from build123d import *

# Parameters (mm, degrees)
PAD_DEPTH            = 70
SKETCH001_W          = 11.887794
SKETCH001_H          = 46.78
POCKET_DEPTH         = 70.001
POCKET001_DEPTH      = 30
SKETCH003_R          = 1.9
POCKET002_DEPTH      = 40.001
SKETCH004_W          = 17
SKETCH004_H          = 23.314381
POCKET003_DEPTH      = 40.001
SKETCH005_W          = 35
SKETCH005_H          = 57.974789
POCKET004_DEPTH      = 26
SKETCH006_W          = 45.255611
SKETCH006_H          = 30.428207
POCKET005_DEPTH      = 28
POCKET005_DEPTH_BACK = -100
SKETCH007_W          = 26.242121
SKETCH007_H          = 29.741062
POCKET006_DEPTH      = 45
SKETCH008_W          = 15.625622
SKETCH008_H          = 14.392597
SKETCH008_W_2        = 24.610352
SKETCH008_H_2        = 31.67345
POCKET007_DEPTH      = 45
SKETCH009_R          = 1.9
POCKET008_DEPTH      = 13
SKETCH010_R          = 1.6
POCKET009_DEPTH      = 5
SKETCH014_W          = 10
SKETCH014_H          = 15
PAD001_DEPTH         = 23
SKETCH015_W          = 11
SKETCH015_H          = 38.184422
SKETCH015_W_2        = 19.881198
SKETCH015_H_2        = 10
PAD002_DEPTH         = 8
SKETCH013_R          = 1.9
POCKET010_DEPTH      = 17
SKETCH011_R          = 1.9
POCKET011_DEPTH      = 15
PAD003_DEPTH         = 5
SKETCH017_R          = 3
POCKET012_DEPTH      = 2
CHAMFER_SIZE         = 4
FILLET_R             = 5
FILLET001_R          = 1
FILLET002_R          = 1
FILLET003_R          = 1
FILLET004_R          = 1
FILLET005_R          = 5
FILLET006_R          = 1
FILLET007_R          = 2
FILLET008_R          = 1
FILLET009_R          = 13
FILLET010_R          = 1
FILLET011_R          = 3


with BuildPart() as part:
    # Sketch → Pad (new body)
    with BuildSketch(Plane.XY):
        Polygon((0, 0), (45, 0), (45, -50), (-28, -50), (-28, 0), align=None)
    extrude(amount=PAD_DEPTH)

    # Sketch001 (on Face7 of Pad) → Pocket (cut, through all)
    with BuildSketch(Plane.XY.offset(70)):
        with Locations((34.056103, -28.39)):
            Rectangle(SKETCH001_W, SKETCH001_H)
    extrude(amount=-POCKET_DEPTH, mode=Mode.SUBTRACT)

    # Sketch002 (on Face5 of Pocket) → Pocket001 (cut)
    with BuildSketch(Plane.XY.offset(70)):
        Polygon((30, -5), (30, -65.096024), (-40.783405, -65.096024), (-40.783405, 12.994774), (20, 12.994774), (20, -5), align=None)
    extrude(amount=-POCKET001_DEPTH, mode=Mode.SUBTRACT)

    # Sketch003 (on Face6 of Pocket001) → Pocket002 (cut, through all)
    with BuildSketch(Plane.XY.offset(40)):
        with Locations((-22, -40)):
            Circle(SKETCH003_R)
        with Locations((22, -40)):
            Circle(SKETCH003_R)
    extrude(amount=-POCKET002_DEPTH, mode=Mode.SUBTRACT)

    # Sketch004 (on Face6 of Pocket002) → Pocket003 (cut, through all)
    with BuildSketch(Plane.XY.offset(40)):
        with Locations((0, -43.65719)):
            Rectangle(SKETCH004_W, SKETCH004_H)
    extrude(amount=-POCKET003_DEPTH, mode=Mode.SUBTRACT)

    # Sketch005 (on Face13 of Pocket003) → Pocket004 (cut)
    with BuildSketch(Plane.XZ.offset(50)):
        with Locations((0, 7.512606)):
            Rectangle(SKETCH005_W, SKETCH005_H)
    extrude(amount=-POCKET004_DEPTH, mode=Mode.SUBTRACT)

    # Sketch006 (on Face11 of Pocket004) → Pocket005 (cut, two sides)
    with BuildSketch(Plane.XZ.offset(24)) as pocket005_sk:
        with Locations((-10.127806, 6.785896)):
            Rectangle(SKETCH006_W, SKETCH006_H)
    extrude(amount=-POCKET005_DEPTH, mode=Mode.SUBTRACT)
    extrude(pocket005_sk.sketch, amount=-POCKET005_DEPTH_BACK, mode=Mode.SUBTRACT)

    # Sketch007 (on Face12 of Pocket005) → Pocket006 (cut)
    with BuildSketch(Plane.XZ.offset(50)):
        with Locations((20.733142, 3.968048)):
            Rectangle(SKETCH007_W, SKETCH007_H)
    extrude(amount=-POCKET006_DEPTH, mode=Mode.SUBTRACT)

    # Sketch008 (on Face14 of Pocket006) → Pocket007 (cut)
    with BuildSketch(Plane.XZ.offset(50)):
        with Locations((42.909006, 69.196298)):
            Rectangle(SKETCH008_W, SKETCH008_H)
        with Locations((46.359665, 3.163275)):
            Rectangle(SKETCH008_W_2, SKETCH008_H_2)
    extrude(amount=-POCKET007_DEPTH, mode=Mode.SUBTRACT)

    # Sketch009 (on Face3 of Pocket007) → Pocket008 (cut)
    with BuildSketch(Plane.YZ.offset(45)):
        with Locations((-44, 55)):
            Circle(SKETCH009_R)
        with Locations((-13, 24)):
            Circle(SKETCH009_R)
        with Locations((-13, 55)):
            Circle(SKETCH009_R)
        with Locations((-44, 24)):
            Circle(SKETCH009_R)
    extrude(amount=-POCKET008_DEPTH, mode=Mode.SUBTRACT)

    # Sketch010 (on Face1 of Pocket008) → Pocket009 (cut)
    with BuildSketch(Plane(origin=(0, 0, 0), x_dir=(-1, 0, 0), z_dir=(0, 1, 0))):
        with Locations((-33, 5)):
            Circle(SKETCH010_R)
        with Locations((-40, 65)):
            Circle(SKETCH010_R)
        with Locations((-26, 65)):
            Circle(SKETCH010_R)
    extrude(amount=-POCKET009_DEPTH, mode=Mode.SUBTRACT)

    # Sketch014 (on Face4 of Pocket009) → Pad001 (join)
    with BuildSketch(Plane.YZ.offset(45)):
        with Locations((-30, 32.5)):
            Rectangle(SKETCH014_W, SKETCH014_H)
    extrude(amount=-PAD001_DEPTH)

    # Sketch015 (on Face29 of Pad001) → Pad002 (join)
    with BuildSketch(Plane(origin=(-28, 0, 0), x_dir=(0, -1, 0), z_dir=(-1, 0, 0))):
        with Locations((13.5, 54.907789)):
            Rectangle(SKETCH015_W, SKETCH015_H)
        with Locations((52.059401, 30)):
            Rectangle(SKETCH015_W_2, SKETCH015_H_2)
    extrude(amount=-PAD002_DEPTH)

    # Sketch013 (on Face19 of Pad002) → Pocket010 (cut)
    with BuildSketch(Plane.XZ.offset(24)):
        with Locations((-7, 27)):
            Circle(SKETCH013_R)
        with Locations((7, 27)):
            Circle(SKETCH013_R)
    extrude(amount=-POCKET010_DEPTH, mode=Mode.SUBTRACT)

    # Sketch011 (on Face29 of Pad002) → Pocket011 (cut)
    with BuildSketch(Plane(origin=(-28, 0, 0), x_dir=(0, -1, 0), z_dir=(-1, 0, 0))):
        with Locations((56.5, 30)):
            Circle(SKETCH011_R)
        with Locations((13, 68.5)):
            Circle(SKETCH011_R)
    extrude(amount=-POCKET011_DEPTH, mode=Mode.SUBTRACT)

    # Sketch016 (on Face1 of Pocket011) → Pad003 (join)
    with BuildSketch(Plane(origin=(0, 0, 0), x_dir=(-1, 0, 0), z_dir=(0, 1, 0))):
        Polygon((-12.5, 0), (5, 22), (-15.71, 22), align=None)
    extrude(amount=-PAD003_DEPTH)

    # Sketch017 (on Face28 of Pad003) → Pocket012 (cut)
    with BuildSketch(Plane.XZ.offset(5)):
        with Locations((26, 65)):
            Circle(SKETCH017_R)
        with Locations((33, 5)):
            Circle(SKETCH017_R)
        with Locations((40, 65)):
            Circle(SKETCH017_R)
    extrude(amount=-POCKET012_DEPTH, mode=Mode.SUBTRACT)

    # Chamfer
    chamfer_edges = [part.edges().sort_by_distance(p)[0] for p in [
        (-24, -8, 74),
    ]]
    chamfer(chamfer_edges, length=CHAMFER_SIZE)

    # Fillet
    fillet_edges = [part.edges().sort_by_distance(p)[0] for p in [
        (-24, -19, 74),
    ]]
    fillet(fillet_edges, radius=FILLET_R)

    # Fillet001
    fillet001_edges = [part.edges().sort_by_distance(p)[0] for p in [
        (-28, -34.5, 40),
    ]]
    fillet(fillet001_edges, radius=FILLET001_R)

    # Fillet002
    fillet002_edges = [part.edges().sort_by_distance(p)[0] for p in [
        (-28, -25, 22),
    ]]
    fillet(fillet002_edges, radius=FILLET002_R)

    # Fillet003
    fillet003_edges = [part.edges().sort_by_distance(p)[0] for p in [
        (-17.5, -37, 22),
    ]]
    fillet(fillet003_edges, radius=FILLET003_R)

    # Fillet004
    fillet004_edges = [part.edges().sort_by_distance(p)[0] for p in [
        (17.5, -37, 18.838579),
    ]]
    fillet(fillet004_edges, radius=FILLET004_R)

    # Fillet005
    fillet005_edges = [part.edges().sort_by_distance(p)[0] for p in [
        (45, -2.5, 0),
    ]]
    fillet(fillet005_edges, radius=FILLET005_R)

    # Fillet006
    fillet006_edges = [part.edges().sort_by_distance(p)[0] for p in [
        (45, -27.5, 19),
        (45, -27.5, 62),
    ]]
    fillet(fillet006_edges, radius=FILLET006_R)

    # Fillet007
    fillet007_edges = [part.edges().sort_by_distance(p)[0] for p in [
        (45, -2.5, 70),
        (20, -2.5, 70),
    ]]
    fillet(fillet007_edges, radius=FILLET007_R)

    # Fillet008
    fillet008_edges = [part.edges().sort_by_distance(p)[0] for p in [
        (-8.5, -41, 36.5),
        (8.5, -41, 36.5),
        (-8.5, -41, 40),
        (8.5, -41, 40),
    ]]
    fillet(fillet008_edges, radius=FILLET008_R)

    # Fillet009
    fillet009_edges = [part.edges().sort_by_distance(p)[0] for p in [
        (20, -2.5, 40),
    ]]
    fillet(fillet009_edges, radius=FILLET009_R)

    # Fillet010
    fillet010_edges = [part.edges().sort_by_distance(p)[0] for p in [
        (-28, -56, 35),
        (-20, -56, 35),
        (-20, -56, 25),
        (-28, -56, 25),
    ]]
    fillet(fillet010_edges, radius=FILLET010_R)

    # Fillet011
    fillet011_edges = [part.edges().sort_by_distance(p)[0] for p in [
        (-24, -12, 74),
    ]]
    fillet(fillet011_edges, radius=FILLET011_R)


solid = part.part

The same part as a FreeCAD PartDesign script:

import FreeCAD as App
import Part
import Sketcher

V = App.Vector


def edges_at(feature, points):
    """Names of the edges that pass closest to the given points."""
    edges = feature.Shape.Edges
    near = lambda p: min(range(len(edges)), key=lambda i: edges[i].distToShape(Part.Vertex(*p))[0])
    return sorted({f"Edge{near(p) + 1}" for p in points})


def add_polygon(sketch, points):
    """Adds a closed chain of lines whose ends are joined by coincident constraints."""
    first, n = sketch.GeometryCount, len(points)
    for a, b in zip(points, points[1:] + points[:1]):
        sketch.addGeometry(Part.LineSegment(App.Vector(*a, 0), App.Vector(*b, 0)), False)
    for i in range(n):
        sketch.addConstraint(Sketcher.Constraint("Coincident", first + i, 2, first + (i + 1) % n, 1))

doc = App.newDocument("Part")
body = doc.addObject("PartDesign::Body", "Body")

sketch1 = body.newObject("Sketcher::SketchObject", "Sketch")
sketch1.AttachmentSupport = (doc.getObject("XY_Plane"), [""])
sketch1.MapMode = "FlatFace"
add_polygon(sketch1, [(45, 0), (-28, 0), (-28, -50), (45, -50)])
sketch1.addConstraint([
    Sketcher.Constraint("Horizontal", 0),
    Sketcher.Constraint("Vertical", 1),
    Sketcher.Constraint("Horizontal", 2),
    Sketcher.Constraint("Vertical", 3),
    Sketcher.Constraint("PointOnObject", 0, 2, -1),
    Sketcher.Constraint("DistanceX", 0, 2, 0, 1, 73.0),
    Sketcher.Constraint("DistanceY", 1, 2, 1, 1, 50.0),
    Sketcher.Constraint("DistanceX", 0, 2, -1, 1, 28.0),
])
pad1 = body.newObject("PartDesign::Pad", "Pad")
pad1.Profile = sketch1
pad1.Length = 70

sketch2 = body.newObject("Sketcher::SketchObject", "Sketch001")
sketch2.AttachmentSupport = (doc.getObject("XY_Plane"), [""])
sketch2.MapMode = "FlatFace"
sketch2.AttachmentOffset = App.Placement(V(0, 0, 70), App.Rotation())
add_polygon(sketch2, [(28, -5), (28, -52), (40, -52), (40, -5)])
sketch2.addConstraint([
    Sketcher.Constraint("Vertical", 0),
    Sketcher.Constraint("Horizontal", 1),
    Sketcher.Constraint("Vertical", 2),
    Sketcher.Constraint("Horizontal", 3),
    Sketcher.Constraint("DistanceX", -1, 1, 1, 2, 40.0),
    Sketcher.Constraint("DistanceY", 2, 2, -1, 1, 5.0),
    Sketcher.Constraint("DistanceY", 0, 2, 0, 1, 46.78),
    Sketcher.Constraint("DistanceX", 1, 1, 1, 2, 11.887794),
])
pocket1 = body.newObject("PartDesign::Pocket", "Pocket")
pocket1.Profile = sketch2
pocket1.Type = "ThroughAll"

sketch3 = body.newObject("Sketcher::SketchObject", "Sketch002")
sketch3.AttachmentSupport = (doc.getObject("XY_Plane"), [""])
sketch3.MapMode = "FlatFace"
sketch3.AttachmentOffset = App.Placement(V(0, 0, 70), App.Rotation())
add_polygon(sketch3, [(30, -65), (30, -5), (20, -5), (20, 13), (-41, 13), (-41, -65)])
sketch3.addConstraint([
    Sketcher.Constraint("Vertical", 0),
    Sketcher.Constraint("Horizontal", 1),
    Sketcher.Constraint("Vertical", 2),
    Sketcher.Constraint("Horizontal", 3),
    Sketcher.Constraint("Vertical", 4),
    Sketcher.Constraint("Horizontal", 5),
    Sketcher.Constraint("DistanceX", 1, 2, 1, 1, 10.0),
    Sketcher.Constraint("DistanceX", -1, 1, 0, 2, 30.0),
    Sketcher.Constraint("DistanceY", 0, 2, -1, 1, 5.0),
    Sketcher.Constraint("DistanceY", 4, 2, 4, 1, 78.090798),
    Sketcher.Constraint("DistanceX", 3, 2, 3, 1, 60.783405),
    Sketcher.Constraint("DistanceY", 0, 1, 0, 2, 60.096024),
])
pocket2 = body.newObject("PartDesign::Pocket", "Pocket001")
pocket2.Profile = sketch3
pocket2.Length = 30

sketch4 = body.newObject("Sketcher::SketchObject", "Sketch003")
sketch4.AttachmentSupport = (doc.getObject("XY_Plane"), [""])
sketch4.MapMode = "FlatFace"
sketch4.AttachmentOffset = App.Placement(V(0, 0, 40), App.Rotation())
sketch4.addGeometry([
    Part.Circle(V(-22, -40, 0), V(0, 0, 1), 1.9),
    Part.Circle(V(22, -40, 0), V(0, 0, 1), 1.9),
], False)
sketch4.addConstraint([
    Sketcher.Constraint("Equal", 0, 1),
    Sketcher.Constraint("Symmetric", 0, 3, 1, 3, -2),
    Sketcher.Constraint("Diameter", 0, 3.8),
    Sketcher.Constraint("DistanceX", 0, 3, -1, 1, 22.0),
    Sketcher.Constraint("DistanceY", 0, 3, -1, 1, 40.0),
])
pocket3 = body.newObject("PartDesign::Pocket", "Pocket002")
pocket3.Profile = sketch4
pocket3.Type = "ThroughAll"

sketch5 = body.newObject("Sketcher::SketchObject", "Sketch004")
sketch5.AttachmentSupport = (doc.getObject("XY_Plane"), [""])
sketch5.MapMode = "FlatFace"
sketch5.AttachmentOffset = App.Placement(V(0, 0, 40), App.Rotation())
add_polygon(sketch5, [(-8, -32), (-8, -55), (8, -55), (8, -32)])
sketch5.addConstraint([
    Sketcher.Constraint("Vertical", 0),
    Sketcher.Constraint("Horizontal", 1),
    Sketcher.Constraint("Vertical", 2),
    Sketcher.Constraint("Horizontal", 3),
    Sketcher.Constraint("DistanceX", 1, 1, 1, 2, 17.0),
    Sketcher.Constraint("DistanceY", 2, 2, -1, 1, 32.0),
    Sketcher.Constraint("DistanceX", 0, 2, -1, 1, 8.5),
    Sketcher.Constraint("DistanceY", 0, 2, 0, 1, 23.314381),
])
pocket4 = body.newObject("PartDesign::Pocket", "Pocket003")
pocket4.Profile = sketch5
pocket4.Type = "ThroughAll"

sketch6 = body.newObject("Sketcher::SketchObject", "Sketch005")
sketch6.AttachmentSupport = (doc.getObject("XZ_Plane"), [""])
sketch6.MapMode = "FlatFace"
sketch6.AttachmentOffset = App.Placement(V(0, 0, 50), App.Rotation())
add_polygon(sketch6, [(-18, 37), (-18, -21), (18, -21), (18, 37)])
sketch6.addConstraint([
    Sketcher.Constraint("Vertical", 0),
    Sketcher.Constraint("Horizontal", 1),
    Sketcher.Constraint("Vertical", 2),
    Sketcher.Constraint("Horizontal", 3),
    Sketcher.Constraint("DistanceX", 1, 1, 1, 2, 35.0),
    Sketcher.Constraint("DistanceX", 0, 2, -1, 1, 17.5),
    Sketcher.Constraint("DistanceY", -1, 1, 2, 2, 36.5),
    Sketcher.Constraint("DistanceY", 0, 2, 0, 1, 57.974789),
])
pocket5 = body.newObject("PartDesign::Pocket", "Pocket004")
pocket5.Profile = sketch6
pocket5.Length = 26

sketch7 = body.newObject("Sketcher::SketchObject", "Sketch006")
sketch7.AttachmentSupport = (doc.getObject("XZ_Plane"), [""])
sketch7.MapMode = "FlatFace"
sketch7.AttachmentOffset = App.Placement(V(0, 0, 24), App.Rotation())
add_polygon(sketch7, [(-33, 22), (-33, -8), (12, -8), (12, 22)])
sketch7.addConstraint([
    Sketcher.Constraint("Vertical", 0),
    Sketcher.Constraint("Horizontal", 1),
    Sketcher.Constraint("Vertical", 2),
    Sketcher.Constraint("Horizontal", 3),
    Sketcher.Constraint("DistanceY", -1, 1, 2, 2, 22.0),
    Sketcher.Constraint("DistanceX", -1, 1, 1, 2, 12.499999),
    Sketcher.Constraint("DistanceX", 1, 1, 1, 2, 45.255611),
    Sketcher.Constraint("DistanceY", 0, 2, 0, 1, 30.428207),
])
pocket6 = body.newObject("PartDesign::Pocket", "Pocket005")
pocket6.Profile = sketch7
pocket6.Type = "ThroughAll"
pocket6.Midplane = True

sketch8 = body.newObject("Sketcher::SketchObject", "Sketch007")
sketch8.AttachmentSupport = (doc.getObject("XZ_Plane"), [""])
sketch8.MapMode = "FlatFace"
sketch8.AttachmentOffset = App.Placement(V(0, 0, 50), App.Rotation())
add_polygon(sketch8, [(8, 19), (8, -11), (34, -11), (34, 19)])
sketch8.addConstraint([
    Sketcher.Constraint("Vertical", 0),
    Sketcher.Constraint("Horizontal", 1),
    Sketcher.Constraint("Vertical", 2),
    Sketcher.Constraint("Horizontal", 3),
    Sketcher.Constraint("DistanceX", 1, 1, 1, 2, 26.242121),
    Sketcher.Constraint("DistanceY", 0, 2, 0, 1, 29.741062),
    Sketcher.Constraint("DistanceX", -1, 1, 0, 2, 7.612082),
    Sketcher.Constraint("DistanceY", -1, 1, 2, 2, 18.838579),
])
pocket7 = body.newObject("PartDesign::Pocket", "Pocket006")
pocket7.Profile = sketch8
pocket7.Length = 45

sketch9 = body.newObject("Sketcher::SketchObject", "Sketch008")
sketch9.AttachmentSupport = (doc.getObject("XZ_Plane"), [""])
sketch9.MapMode = "FlatFace"
sketch9.AttachmentOffset = App.Placement(V(0, 0, 50), App.Rotation())
add_polygon(sketch9, [(35, 76), (35, 62), (51, 62), (51, 76)])
add_polygon(sketch9, [(34, 19), (34, -13), (59, -13), (59, 19)])
sketch9.addConstraint([
    Sketcher.Constraint("Vertical", 0),
    Sketcher.Constraint("Horizontal", 1),
    Sketcher.Constraint("Vertical", 2),
    Sketcher.Constraint("Horizontal", 3),
    Sketcher.Constraint("Vertical", 4),
    Sketcher.Constraint("Horizontal", 5),
    Sketcher.Constraint("Vertical", 6),
    Sketcher.Constraint("Horizontal", 7),
    Sketcher.Constraint("DistanceY", -1, 1, 0, 2, 62.0),
    Sketcher.Constraint("DistanceY", -1, 1, 6, 2, 19.0),
    Sketcher.Constraint("DistanceY", 4, 2, 4, 1, 31.67345),
    Sketcher.Constraint("DistanceX", 1, 1, 1, 2, 15.625622),
    Sketcher.Constraint("DistanceX", 5, 1, 5, 2, 24.610352),
    Sketcher.Constraint("DistanceY", 0, 2, 0, 1, 14.392597),
    Sketcher.Constraint("DistanceX", -1, 1, 4, 2, 34.054489),
    Sketcher.Constraint("DistanceX", 4, 2, 1, 2, 16.667328),
])
pocket8 = body.newObject("PartDesign::Pocket", "Pocket007")
pocket8.Profile = sketch9
pocket8.Length = 45

sketch10 = body.newObject("Sketcher::SketchObject", "Sketch009")
sketch10.AttachmentSupport = (doc.getObject("YZ_Plane"), [""])
sketch10.MapMode = "FlatFace"
sketch10.AttachmentOffset = App.Placement(V(0, 0, 45), App.Rotation())
sketch10.addGeometry([
    Part.Circle(V(-44, 55, 0), V(0, 0, 1), 1.9),
    Part.Circle(V(-13, 24, 0), V(0, 0, 1), 1.9),
    Part.Circle(V(-13, 55, 0), V(0, 0, 1), 1.9),
    Part.Circle(V(-44, 24, 0), V(0, 0, 1), 1.9),
], False)
sketch10.addConstraint([
    Sketcher.Constraint("Equal", 0, 1),
    Sketcher.Constraint("Equal", 1, 2),
    Sketcher.Constraint("Equal", 2, 3),
    Sketcher.Constraint("Horizontal", 0, 3, 2, 3),
    Sketcher.Constraint("Horizontal", 1, 3, 3, 3),
    Sketcher.Constraint("Vertical", 1, 3, 2, 3),
    Sketcher.Constraint("Vertical", 0, 3, 3, 3),
    Sketcher.Constraint("Diameter", 0, 3.8),
    Sketcher.Constraint("DistanceX", 0, 3, -1, 1, 44.0),
    Sketcher.Constraint("DistanceY", -1, 1, 0, 3, 55.0),
    Sketcher.Constraint("DistanceX", 1, 3, -1, 1, 13.0),
    Sketcher.Constraint("DistanceY", -1, 1, 1, 3, 24.0),
])
pocket9 = body.newObject("PartDesign::Pocket", "Pocket008")
pocket9.Profile = sketch10
pocket9.Length = 13

sketch11 = body.newObject("Sketcher::SketchObject", "Sketch010")
sketch11.AttachmentSupport = (doc.getObject("XZ_Plane"), [""])
sketch11.MapMode = "FlatFace"
sketch11.addGeometry([
    Part.Circle(V(33, 5, 0), V(0, 0, 1), 1.6),
    Part.Circle(V(40, 65, 0), V(0, 0, 1), 1.6),
    Part.Circle(V(26, 65, 0), V(0, 0, 1), 1.6),
], False)
sketch11.addConstraint([
    Sketcher.Constraint("Equal", 0, 1),
    Sketcher.Constraint("Equal", 1, 2),
    Sketcher.Constraint("Horizontal", 1, 3, 2, 3),
    Sketcher.Constraint("Diameter", 0, 3.2),
    Sketcher.Constraint("DistanceX", -1, 1, 0, 3, 33.0),
    Sketcher.Constraint("DistanceY", -1, 1, 0, 3, 5.0),
    Sketcher.Constraint("DistanceX", -1, 1, 1, 3, 40.0),
    Sketcher.Constraint("DistanceY", -1, 1, 1, 3, 65.0),
    Sketcher.Constraint("DistanceX", -1, 1, 2, 3, 26.0),
])
pocket10 = body.newObject("PartDesign::Pocket", "Pocket009")
pocket10.Profile = sketch11
pocket10.Length = 5
pocket10.Reversed = True

sketch12 = body.newObject("Sketcher::SketchObject", "Sketch011")
sketch12.AttachmentSupport = (doc.getObject("YZ_Plane"), [""])
sketch12.MapMode = "FlatFace"
sketch12.AttachmentOffset = App.Placement(V(0, 0, 45), App.Rotation())
add_polygon(sketch12, [(-35, 40), (-35, 25), (-25, 25), (-25, 40)])
sketch12.addConstraint([
    Sketcher.Constraint("Vertical", 0),
    Sketcher.Constraint("Horizontal", 1),
    Sketcher.Constraint("Vertical", 2),
    Sketcher.Constraint("Horizontal", 3),
    Sketcher.Constraint("DistanceX", 1, 1, 1, 2, 10.0),
    Sketcher.Constraint("DistanceY", 0, 2, 0, 1, 15.0),
    Sketcher.Constraint("DistanceX", 0, 2, -1, 1, 35.0),
    Sketcher.Constraint("DistanceY", -1, 1, 0, 2, 25.0),
])
pad2 = body.newObject("PartDesign::Pad", "Pad001")
pad2.Profile = sketch12
pad2.Length = 23
pad2.Reversed = True

sketch13 = body.newObject("Sketcher::SketchObject", "Sketch012")
sketch13.AttachmentSupport = (doc.getObject("YZ_Plane"), [""])
sketch13.MapMode = "FlatFace"
sketch13.AttachmentOffset = App.Placement(V(0, 0, -28), App.Rotation())
add_polygon(sketch13, [(-8, 74), (-8, 36), (-19, 36), (-19, 74)])
add_polygon(sketch13, [(-42, 35), (-42, 25), (-62, 25), (-62, 35)])
sketch13.addConstraint([
    Sketcher.Constraint("Vertical", 0),
    Sketcher.Constraint("Horizontal", 1),
    Sketcher.Constraint("Vertical", 2),
    Sketcher.Constraint("Horizontal", 3),
    Sketcher.Constraint("Vertical", 4),
    Sketcher.Constraint("Horizontal", 5),
    Sketcher.Constraint("Vertical", 6),
    Sketcher.Constraint("Horizontal", 7),
    Sketcher.Constraint("DistanceX", 1, 2, 1, 1, 11.0),
    Sketcher.Constraint("DistanceY", 4, 2, 4, 1, 10.0),
    Sketcher.Constraint("DistanceX", 0, 2, -1, 1, 8.0),
    Sketcher.Constraint("DistanceY", -1, 1, 2, 2, 74.0),
    Sketcher.Constraint("DistanceY", -1, 1, 4, 2, 25.0),
    Sketcher.Constraint("DistanceX", 5, 2, -1, 1, 62.0),
    Sketcher.Constraint("DistanceY", 0, 2, 0, 1, 38.184422),
    Sketcher.Constraint("DistanceX", 5, 2, 5, 1, 19.881198),
])
pad3 = body.newObject("PartDesign::Pad", "Pad002")
pad3.Profile = sketch13
pad3.Length = 8

sketch14 = body.newObject("Sketcher::SketchObject", "Sketch013")
sketch14.AttachmentSupport = (doc.getObject("XZ_Plane"), [""])
sketch14.MapMode = "FlatFace"
sketch14.AttachmentOffset = App.Placement(V(0, 0, 24), App.Rotation())
sketch14.addGeometry([
    Part.Circle(V(-7, 27, 0), V(0, 0, 1), 1.9),
    Part.Circle(V(7, 27, 0), V(0, 0, 1), 1.9),
], False)
sketch14.addConstraint([
    Sketcher.Constraint("Equal", 0, 1),
    Sketcher.Constraint("Symmetric", 0, 3, 1, 3, -2),
    Sketcher.Constraint("Diameter", 0, 3.8),
    Sketcher.Constraint("DistanceX", 0, 3, -1, 1, 7.0),
    Sketcher.Constraint("DistanceY", -1, 1, 0, 3, 27.0),
])
pocket11 = body.newObject("PartDesign::Pocket", "Pocket010")
pocket11.Profile = sketch14
pocket11.Length = 17

sketch15 = body.newObject("Sketcher::SketchObject", "Sketch014")
sketch15.AttachmentSupport = (doc.getObject("YZ_Plane"), [""])
sketch15.MapMode = "FlatFace"
sketch15.AttachmentOffset = App.Placement(V(0, 0, -28), App.Rotation())
sketch15.addGeometry([
    Part.Circle(V(-56.5, 30, 0), V(0, 0, 1), 1.9),
    Part.Circle(V(-13, 68.5, 0), V(0, 0, 1), 1.9),
], False)
sketch15.addConstraint([
    Sketcher.Constraint("Equal", 0, 1),
    Sketcher.Constraint("Diameter", 0, 3.8),
    Sketcher.Constraint("DistanceY", -1, 1, 0, 3, 30.0),
    Sketcher.Constraint("DistanceX", 1, 3, -1, 1, 13.0),
    Sketcher.Constraint("DistanceX", 0, 3, -1, 1, 56.5),
    Sketcher.Constraint("DistanceY", -1, 1, 1, 3, 68.5),
])
pocket12 = body.newObject("PartDesign::Pocket", "Pocket011")
pocket12.Profile = sketch15
pocket12.Length = 15
pocket12.Reversed = True

sketch16 = body.newObject("Sketcher::SketchObject", "Sketch015")
sketch16.AttachmentSupport = (doc.getObject("XZ_Plane"), [""])
sketch16.MapMode = "FlatFace"
add_polygon(sketch16, [(12, 0), (-5, 22), (16, 22)])
sketch16.addConstraint([
    Sketcher.Constraint("Horizontal", 1),
    Sketcher.Constraint("PointOnObject", 2, 2, -1),
    Sketcher.Constraint("DistanceX", 0, 2, -1, 1, 5.0),
    Sketcher.Constraint("DistanceY", -1, 1, 0, 2, 22.0),
    Sketcher.Constraint("DistanceX", 1, 1, 1, 2, 20.71),
    Sketcher.Constraint("DistanceX", -1, 1, 2, 2, 12.5),
])
pad4 = body.newObject("PartDesign::Pad", "Pad003")
pad4.Profile = sketch16
pad4.Length = 5

sketch17 = body.newObject("Sketcher::SketchObject", "Sketch016")
sketch17.AttachmentSupport = (doc.getObject("XZ_Plane"), [""])
sketch17.MapMode = "FlatFace"
sketch17.AttachmentOffset = App.Placement(V(0, 0, 5), App.Rotation())
sketch17.addGeometry([
    Part.Circle(V(26, 65, 0), V(0, 0, 1), 3),
    Part.Circle(V(33, 5, 0), V(0, 0, 1), 3),
    Part.Circle(V(40, 65, 0), V(0, 0, 1), 3),
], False)
sketch17.addConstraint([
    Sketcher.Constraint("Equal", 0, 1),
    Sketcher.Constraint("Equal", 1, 2),
    Sketcher.Constraint("Horizontal", 0, 3, 2, 3),
    Sketcher.Constraint("Diameter", 0, 6.0),
    Sketcher.Constraint("DistanceX", -1, 1, 0, 3, 26.0),
    Sketcher.Constraint("DistanceY", -1, 1, 0, 3, 65.0),
    Sketcher.Constraint("DistanceX", -1, 1, 1, 3, 33.0),
    Sketcher.Constraint("DistanceY", -1, 1, 1, 3, 5.0),
    Sketcher.Constraint("DistanceX", -1, 1, 2, 3, 40.0),
])
pocket13 = body.newObject("PartDesign::Pocket", "Pocket012")
pocket13.Profile = sketch17
pocket13.Length = 2
doc.recompute()

chamfer = body.newObject("PartDesign::Chamfer", "Chamfer")
chamfer.Base = (pocket13, edges_at(pocket13, [(-24, -8, 74)]))
chamfer.Size = 4
doc.recompute()

fillet = body.newObject("PartDesign::Fillet", "Fillet")
fillet.Base = (chamfer, edges_at(chamfer, [(-24, -19, 74)]))
fillet.Radius = 5
doc.recompute()

fillet2 = body.newObject("PartDesign::Fillet", "Fillet001")
fillet2.Base = (fillet, edges_at(fillet, [(-28, -34.5, 40)]))
fillet2.Radius = 1
doc.recompute()

fillet3 = body.newObject("PartDesign::Fillet", "Fillet002")
fillet3.Base = (fillet2, edges_at(fillet2, [(-28, -25, 22)]))
fillet3.Radius = 1
doc.recompute()

fillet4 = body.newObject("PartDesign::Fillet", "Fillet003")
fillet4.Base = (fillet3, edges_at(fillet3, [(-17.5, -37, 22)]))
fillet4.Radius = 1
doc.recompute()

fillet5 = body.newObject("PartDesign::Fillet", "Fillet004")
fillet5.Base = (fillet4, edges_at(fillet4, [(17.5, -37, 18.839)]))
fillet5.Radius = 1
doc.recompute()

fillet6 = body.newObject("PartDesign::Fillet", "Fillet005")
fillet6.Base = (fillet5, edges_at(fillet5, [(45, -2.5, 0)]))
fillet6.Radius = 5
doc.recompute()

fillet7 = body.newObject("PartDesign::Fillet", "Fillet006")
fillet7.Base = (fillet6, edges_at(fillet6, [(45, -27.5, 19), (45, -27.5, 62)]))
fillet7.Radius = 1
doc.recompute()

fillet8 = body.newObject("PartDesign::Fillet", "Fillet007")
fillet8.Base = (fillet7, edges_at(fillet7, [(45, -2.5, 70), (20, -2.5, 70)]))
fillet8.Radius = 2
doc.recompute()

fillet9 = body.newObject("PartDesign::Fillet", "Fillet008")
fillet9.Base = (fillet8, edges_at(fillet8, [
    (-8.5, -41, 36.5),
    (8.5, -41, 36.5),
    (-8.5, -41, 40),
    (8.5, -41, 40),
]))
fillet9.Radius = 1
doc.recompute()

fillet10 = body.newObject("PartDesign::Fillet", "Fillet009")
fillet10.Base = (fillet9, edges_at(fillet9, [(20, -2.5, 40)]))
fillet10.Radius = 13
doc.recompute()

fillet11 = body.newObject("PartDesign::Fillet", "Fillet010")
fillet11.Base = (fillet10, edges_at(fillet10, [
    (-28, -56, 35),
    (-20, -56, 35),
    (-20, -56, 25),
    (-28, -56, 25),
]))
fillet11.Radius = 1
doc.recompute()

fillet12 = body.newObject("PartDesign::Fillet", "Fillet011")
fillet12.Base = (fillet11, edges_at(fillet11, [(-24, -12, 74)]))
fillet12.Radius = 3

doc.recompute()
